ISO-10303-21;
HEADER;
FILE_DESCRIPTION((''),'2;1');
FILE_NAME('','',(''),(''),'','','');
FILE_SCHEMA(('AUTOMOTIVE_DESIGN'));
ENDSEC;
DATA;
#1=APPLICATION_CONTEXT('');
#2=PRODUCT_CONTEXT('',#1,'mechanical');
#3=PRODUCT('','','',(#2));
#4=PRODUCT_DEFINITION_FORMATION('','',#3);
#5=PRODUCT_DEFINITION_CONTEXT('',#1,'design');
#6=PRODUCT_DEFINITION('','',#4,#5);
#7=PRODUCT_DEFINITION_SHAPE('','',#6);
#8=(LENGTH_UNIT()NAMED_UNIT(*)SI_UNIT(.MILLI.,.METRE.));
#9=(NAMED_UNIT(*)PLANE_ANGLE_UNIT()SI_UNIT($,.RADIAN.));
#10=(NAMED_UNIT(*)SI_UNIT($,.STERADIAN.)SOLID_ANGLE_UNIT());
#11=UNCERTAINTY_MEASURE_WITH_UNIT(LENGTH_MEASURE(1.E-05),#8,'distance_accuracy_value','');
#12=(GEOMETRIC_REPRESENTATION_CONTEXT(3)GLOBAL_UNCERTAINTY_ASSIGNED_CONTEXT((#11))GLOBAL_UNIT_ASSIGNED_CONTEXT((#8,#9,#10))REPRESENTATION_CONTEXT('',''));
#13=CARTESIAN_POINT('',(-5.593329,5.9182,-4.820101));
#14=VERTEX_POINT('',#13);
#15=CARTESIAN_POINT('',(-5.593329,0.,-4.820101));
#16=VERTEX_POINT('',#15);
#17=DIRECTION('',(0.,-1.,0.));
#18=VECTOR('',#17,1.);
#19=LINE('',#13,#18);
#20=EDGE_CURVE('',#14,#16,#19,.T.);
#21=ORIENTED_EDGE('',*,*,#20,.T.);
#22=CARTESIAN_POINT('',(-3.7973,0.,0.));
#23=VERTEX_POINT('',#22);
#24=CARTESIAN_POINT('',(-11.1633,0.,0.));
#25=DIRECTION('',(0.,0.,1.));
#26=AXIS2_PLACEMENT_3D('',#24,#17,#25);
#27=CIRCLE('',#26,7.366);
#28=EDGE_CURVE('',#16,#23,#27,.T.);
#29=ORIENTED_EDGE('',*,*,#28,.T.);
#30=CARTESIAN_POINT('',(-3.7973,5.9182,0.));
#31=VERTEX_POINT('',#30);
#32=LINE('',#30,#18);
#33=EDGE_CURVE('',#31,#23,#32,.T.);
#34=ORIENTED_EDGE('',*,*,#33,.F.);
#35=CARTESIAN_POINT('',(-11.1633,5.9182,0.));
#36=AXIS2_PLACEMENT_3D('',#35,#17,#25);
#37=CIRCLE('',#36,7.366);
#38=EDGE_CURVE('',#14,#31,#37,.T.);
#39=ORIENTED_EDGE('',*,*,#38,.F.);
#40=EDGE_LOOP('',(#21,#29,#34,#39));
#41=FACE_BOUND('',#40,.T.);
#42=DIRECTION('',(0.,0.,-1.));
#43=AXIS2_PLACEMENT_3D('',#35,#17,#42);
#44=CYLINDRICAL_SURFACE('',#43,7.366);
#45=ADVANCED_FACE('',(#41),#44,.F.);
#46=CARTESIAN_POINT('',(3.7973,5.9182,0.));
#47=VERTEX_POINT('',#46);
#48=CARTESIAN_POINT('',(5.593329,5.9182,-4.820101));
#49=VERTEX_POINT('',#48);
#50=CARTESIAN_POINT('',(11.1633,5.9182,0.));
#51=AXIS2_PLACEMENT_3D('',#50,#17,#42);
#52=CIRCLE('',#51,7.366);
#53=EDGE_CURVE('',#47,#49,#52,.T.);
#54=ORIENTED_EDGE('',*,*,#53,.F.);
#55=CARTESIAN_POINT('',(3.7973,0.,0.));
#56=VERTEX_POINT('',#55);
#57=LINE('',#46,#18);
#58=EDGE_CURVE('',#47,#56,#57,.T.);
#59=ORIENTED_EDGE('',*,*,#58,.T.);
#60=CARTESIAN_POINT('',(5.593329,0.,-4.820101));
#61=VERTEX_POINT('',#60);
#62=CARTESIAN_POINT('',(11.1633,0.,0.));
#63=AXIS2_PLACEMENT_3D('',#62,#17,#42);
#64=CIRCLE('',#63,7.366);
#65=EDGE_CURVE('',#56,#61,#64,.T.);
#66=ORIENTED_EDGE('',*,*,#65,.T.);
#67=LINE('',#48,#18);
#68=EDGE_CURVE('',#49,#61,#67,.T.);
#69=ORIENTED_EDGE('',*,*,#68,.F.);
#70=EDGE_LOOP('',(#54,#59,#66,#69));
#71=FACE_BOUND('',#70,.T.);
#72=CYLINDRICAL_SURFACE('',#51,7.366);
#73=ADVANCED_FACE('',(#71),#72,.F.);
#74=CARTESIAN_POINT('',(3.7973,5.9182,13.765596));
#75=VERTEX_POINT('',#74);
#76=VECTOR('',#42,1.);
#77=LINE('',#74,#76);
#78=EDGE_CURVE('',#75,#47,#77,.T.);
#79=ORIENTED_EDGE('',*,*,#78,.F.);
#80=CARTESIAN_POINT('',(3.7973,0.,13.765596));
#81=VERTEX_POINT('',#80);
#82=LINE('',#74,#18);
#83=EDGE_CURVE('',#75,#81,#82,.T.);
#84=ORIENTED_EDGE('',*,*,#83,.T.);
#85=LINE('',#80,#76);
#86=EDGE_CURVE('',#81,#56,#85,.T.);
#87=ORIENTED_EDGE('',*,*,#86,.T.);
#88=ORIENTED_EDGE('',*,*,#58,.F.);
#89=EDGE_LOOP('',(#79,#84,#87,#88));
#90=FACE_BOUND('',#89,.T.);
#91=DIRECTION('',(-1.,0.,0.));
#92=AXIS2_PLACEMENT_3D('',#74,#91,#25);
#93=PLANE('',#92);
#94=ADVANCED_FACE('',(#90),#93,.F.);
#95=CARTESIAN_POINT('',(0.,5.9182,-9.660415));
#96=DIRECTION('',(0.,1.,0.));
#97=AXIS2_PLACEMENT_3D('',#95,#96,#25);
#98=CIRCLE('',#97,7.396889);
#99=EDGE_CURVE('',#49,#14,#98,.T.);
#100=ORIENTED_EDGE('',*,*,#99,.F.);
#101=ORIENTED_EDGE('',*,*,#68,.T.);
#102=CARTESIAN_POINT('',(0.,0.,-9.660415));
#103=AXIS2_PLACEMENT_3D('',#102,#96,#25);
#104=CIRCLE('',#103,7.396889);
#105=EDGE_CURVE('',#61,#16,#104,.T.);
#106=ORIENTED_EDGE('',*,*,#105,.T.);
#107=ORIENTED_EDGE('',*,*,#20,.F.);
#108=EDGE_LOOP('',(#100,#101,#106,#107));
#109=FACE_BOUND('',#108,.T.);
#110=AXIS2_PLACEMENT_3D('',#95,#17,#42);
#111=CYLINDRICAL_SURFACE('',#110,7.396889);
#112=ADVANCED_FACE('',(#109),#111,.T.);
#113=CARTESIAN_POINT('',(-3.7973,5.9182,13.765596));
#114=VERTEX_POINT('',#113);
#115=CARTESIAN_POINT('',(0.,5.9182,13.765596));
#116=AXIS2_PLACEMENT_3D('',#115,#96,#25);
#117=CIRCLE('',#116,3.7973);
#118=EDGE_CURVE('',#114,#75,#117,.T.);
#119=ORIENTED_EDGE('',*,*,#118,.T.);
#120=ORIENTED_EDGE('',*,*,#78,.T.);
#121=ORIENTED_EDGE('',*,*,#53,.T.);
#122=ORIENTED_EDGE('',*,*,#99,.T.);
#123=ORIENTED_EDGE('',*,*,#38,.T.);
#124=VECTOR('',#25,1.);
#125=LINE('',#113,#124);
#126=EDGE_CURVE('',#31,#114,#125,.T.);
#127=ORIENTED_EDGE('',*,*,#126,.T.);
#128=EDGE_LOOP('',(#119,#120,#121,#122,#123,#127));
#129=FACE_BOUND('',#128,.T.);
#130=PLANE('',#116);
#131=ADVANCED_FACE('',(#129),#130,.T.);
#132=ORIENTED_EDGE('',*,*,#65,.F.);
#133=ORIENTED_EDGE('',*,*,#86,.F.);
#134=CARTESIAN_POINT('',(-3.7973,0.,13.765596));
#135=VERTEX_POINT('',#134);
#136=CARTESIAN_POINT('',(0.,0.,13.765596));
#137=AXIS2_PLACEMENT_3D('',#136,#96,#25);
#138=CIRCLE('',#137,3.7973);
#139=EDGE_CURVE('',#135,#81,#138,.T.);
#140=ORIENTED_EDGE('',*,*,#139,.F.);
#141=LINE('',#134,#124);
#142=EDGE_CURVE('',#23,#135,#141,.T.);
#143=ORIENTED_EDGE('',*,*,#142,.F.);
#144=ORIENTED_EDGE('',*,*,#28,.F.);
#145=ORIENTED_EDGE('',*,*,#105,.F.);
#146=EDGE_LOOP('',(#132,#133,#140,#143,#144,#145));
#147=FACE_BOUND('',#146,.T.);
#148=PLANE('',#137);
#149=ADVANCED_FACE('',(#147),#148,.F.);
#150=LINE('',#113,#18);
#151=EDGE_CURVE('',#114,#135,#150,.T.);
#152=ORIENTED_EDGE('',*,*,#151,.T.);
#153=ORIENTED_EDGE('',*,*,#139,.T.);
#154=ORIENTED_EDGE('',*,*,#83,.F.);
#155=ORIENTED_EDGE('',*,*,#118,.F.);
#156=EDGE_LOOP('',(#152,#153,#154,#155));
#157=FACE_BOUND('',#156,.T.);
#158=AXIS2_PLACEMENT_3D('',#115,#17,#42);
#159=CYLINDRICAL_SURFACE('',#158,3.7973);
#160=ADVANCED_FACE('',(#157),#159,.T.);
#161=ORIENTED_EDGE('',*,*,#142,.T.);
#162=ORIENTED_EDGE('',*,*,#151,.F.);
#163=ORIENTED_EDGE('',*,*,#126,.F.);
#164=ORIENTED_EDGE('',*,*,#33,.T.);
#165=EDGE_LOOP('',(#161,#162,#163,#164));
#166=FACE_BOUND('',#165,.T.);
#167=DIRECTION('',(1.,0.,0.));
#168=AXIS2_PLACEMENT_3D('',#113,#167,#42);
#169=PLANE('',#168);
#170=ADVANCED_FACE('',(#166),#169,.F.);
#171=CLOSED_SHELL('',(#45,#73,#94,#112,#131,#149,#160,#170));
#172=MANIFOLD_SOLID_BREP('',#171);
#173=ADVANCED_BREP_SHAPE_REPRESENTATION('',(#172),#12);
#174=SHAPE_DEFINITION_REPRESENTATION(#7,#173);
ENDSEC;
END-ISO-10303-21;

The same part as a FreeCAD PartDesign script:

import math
import FreeCAD as App
import Part
import Sketcher
from FreeCAD import Vector
Q = App.Units.Quantity

doc = App.newDocument("Part")
body = doc.addObject("PartDesign::Body", "Body")

sketch1 = body.newObject("Sketcher::SketchObject", "Sketch")
sketch1.AttachmentSupport = (doc.getObject("XZ_Plane"), [""])
sketch1.MapMode = "FlatFace"
sketch1.addGeometry(Part.LineSegment(Vector(-3.8, 0, 0), Vector(-3.8, 13.8, 0)), False)
sketch1.addGeometry(Part.ArcOfCircle(Part.Circle(Vector(0, 13.8, 0), Vector(0, 0, 1), 3.8), math.radians(0), math.radians(180)), False)
sketch1.addGeometry(Part.LineSegment(Vector(3.8, 13.8, 0), Vector(3.8, 0, 0)), False)
sketch1.addGeometry(Part.ArcOfCircle(Part.Circle(Vector(11.2, 0, 0), Vector(0, 0, 1), 7.4), math.radians(180), math.radians(221)), False)
sketch1.addGeometry(Part.ArcOfCircle(Part.Circle(Vector(0, -9.7, 0), Vector(0, 0, 1), 7.4), math.radians(139), math.radians(401)), False)
sketch1.addGeometry(Part.ArcOfCircle(Part.Circle(Vector(-11.2, 0, 0), Vector(0, 0, 1), 7.4), math.radians(-41), math.radians(0)), False)
sketch1.addConstraint(Sketcher.Constraint("Tangent", 0, 2, 1, 2))
sketch1.addConstraint(Sketcher.Constraint("Tangent", 1, 1, 2, 1))
sketch1.addConstraint(Sketcher.Constraint("Tangent", 2, 2, 3, 1))
sketch1.addConstraint(Sketcher.Constraint("Tangent", 3, 2, 4, 2))
sketch1.addConstraint(Sketcher.Constraint("Tangent", 4, 1, 5, 1))
sketch1.addConstraint(Sketcher.Constraint("Tangent", 5, 2, 0, 1))
sketch1.addConstraint(Sketcher.Constraint("Vertical", 0))
sketch1.addConstraint(Sketcher.Constraint("Vertical", 2))
sketch1.addConstraint(Sketcher.Constraint("Equal", 3, 5))
sketch1.addConstraint(Sketcher.Constraint("Symmetric", 3, 3, 5, 3, -1, 1))
sketch1.addConstraint(Sketcher.Constraint("PointOnObject", 3, 3, -1))
sketch1.addConstraint(Sketcher.Constraint("Radius", 3, Q("0.29 in")))
sketch1.addConstraint(Sketcher.Constraint("Radius", 1, Q("0.1495 in")))
sketch1.addConstraint(Sketcher.Constraint("Radius", 4, Q("7.396889 mm")))
sketch1.addConstraint(Sketcher.Constraint("DistanceY", 0, 1, 0, 2, Q("13.765596 mm")))
pad1 = body.newObject("PartDesign::Pad", "Pad")
pad1.Profile = sketch1
pad1.Length = Q("0.233 in")
pad1.Reversed = True

doc.recompute()
